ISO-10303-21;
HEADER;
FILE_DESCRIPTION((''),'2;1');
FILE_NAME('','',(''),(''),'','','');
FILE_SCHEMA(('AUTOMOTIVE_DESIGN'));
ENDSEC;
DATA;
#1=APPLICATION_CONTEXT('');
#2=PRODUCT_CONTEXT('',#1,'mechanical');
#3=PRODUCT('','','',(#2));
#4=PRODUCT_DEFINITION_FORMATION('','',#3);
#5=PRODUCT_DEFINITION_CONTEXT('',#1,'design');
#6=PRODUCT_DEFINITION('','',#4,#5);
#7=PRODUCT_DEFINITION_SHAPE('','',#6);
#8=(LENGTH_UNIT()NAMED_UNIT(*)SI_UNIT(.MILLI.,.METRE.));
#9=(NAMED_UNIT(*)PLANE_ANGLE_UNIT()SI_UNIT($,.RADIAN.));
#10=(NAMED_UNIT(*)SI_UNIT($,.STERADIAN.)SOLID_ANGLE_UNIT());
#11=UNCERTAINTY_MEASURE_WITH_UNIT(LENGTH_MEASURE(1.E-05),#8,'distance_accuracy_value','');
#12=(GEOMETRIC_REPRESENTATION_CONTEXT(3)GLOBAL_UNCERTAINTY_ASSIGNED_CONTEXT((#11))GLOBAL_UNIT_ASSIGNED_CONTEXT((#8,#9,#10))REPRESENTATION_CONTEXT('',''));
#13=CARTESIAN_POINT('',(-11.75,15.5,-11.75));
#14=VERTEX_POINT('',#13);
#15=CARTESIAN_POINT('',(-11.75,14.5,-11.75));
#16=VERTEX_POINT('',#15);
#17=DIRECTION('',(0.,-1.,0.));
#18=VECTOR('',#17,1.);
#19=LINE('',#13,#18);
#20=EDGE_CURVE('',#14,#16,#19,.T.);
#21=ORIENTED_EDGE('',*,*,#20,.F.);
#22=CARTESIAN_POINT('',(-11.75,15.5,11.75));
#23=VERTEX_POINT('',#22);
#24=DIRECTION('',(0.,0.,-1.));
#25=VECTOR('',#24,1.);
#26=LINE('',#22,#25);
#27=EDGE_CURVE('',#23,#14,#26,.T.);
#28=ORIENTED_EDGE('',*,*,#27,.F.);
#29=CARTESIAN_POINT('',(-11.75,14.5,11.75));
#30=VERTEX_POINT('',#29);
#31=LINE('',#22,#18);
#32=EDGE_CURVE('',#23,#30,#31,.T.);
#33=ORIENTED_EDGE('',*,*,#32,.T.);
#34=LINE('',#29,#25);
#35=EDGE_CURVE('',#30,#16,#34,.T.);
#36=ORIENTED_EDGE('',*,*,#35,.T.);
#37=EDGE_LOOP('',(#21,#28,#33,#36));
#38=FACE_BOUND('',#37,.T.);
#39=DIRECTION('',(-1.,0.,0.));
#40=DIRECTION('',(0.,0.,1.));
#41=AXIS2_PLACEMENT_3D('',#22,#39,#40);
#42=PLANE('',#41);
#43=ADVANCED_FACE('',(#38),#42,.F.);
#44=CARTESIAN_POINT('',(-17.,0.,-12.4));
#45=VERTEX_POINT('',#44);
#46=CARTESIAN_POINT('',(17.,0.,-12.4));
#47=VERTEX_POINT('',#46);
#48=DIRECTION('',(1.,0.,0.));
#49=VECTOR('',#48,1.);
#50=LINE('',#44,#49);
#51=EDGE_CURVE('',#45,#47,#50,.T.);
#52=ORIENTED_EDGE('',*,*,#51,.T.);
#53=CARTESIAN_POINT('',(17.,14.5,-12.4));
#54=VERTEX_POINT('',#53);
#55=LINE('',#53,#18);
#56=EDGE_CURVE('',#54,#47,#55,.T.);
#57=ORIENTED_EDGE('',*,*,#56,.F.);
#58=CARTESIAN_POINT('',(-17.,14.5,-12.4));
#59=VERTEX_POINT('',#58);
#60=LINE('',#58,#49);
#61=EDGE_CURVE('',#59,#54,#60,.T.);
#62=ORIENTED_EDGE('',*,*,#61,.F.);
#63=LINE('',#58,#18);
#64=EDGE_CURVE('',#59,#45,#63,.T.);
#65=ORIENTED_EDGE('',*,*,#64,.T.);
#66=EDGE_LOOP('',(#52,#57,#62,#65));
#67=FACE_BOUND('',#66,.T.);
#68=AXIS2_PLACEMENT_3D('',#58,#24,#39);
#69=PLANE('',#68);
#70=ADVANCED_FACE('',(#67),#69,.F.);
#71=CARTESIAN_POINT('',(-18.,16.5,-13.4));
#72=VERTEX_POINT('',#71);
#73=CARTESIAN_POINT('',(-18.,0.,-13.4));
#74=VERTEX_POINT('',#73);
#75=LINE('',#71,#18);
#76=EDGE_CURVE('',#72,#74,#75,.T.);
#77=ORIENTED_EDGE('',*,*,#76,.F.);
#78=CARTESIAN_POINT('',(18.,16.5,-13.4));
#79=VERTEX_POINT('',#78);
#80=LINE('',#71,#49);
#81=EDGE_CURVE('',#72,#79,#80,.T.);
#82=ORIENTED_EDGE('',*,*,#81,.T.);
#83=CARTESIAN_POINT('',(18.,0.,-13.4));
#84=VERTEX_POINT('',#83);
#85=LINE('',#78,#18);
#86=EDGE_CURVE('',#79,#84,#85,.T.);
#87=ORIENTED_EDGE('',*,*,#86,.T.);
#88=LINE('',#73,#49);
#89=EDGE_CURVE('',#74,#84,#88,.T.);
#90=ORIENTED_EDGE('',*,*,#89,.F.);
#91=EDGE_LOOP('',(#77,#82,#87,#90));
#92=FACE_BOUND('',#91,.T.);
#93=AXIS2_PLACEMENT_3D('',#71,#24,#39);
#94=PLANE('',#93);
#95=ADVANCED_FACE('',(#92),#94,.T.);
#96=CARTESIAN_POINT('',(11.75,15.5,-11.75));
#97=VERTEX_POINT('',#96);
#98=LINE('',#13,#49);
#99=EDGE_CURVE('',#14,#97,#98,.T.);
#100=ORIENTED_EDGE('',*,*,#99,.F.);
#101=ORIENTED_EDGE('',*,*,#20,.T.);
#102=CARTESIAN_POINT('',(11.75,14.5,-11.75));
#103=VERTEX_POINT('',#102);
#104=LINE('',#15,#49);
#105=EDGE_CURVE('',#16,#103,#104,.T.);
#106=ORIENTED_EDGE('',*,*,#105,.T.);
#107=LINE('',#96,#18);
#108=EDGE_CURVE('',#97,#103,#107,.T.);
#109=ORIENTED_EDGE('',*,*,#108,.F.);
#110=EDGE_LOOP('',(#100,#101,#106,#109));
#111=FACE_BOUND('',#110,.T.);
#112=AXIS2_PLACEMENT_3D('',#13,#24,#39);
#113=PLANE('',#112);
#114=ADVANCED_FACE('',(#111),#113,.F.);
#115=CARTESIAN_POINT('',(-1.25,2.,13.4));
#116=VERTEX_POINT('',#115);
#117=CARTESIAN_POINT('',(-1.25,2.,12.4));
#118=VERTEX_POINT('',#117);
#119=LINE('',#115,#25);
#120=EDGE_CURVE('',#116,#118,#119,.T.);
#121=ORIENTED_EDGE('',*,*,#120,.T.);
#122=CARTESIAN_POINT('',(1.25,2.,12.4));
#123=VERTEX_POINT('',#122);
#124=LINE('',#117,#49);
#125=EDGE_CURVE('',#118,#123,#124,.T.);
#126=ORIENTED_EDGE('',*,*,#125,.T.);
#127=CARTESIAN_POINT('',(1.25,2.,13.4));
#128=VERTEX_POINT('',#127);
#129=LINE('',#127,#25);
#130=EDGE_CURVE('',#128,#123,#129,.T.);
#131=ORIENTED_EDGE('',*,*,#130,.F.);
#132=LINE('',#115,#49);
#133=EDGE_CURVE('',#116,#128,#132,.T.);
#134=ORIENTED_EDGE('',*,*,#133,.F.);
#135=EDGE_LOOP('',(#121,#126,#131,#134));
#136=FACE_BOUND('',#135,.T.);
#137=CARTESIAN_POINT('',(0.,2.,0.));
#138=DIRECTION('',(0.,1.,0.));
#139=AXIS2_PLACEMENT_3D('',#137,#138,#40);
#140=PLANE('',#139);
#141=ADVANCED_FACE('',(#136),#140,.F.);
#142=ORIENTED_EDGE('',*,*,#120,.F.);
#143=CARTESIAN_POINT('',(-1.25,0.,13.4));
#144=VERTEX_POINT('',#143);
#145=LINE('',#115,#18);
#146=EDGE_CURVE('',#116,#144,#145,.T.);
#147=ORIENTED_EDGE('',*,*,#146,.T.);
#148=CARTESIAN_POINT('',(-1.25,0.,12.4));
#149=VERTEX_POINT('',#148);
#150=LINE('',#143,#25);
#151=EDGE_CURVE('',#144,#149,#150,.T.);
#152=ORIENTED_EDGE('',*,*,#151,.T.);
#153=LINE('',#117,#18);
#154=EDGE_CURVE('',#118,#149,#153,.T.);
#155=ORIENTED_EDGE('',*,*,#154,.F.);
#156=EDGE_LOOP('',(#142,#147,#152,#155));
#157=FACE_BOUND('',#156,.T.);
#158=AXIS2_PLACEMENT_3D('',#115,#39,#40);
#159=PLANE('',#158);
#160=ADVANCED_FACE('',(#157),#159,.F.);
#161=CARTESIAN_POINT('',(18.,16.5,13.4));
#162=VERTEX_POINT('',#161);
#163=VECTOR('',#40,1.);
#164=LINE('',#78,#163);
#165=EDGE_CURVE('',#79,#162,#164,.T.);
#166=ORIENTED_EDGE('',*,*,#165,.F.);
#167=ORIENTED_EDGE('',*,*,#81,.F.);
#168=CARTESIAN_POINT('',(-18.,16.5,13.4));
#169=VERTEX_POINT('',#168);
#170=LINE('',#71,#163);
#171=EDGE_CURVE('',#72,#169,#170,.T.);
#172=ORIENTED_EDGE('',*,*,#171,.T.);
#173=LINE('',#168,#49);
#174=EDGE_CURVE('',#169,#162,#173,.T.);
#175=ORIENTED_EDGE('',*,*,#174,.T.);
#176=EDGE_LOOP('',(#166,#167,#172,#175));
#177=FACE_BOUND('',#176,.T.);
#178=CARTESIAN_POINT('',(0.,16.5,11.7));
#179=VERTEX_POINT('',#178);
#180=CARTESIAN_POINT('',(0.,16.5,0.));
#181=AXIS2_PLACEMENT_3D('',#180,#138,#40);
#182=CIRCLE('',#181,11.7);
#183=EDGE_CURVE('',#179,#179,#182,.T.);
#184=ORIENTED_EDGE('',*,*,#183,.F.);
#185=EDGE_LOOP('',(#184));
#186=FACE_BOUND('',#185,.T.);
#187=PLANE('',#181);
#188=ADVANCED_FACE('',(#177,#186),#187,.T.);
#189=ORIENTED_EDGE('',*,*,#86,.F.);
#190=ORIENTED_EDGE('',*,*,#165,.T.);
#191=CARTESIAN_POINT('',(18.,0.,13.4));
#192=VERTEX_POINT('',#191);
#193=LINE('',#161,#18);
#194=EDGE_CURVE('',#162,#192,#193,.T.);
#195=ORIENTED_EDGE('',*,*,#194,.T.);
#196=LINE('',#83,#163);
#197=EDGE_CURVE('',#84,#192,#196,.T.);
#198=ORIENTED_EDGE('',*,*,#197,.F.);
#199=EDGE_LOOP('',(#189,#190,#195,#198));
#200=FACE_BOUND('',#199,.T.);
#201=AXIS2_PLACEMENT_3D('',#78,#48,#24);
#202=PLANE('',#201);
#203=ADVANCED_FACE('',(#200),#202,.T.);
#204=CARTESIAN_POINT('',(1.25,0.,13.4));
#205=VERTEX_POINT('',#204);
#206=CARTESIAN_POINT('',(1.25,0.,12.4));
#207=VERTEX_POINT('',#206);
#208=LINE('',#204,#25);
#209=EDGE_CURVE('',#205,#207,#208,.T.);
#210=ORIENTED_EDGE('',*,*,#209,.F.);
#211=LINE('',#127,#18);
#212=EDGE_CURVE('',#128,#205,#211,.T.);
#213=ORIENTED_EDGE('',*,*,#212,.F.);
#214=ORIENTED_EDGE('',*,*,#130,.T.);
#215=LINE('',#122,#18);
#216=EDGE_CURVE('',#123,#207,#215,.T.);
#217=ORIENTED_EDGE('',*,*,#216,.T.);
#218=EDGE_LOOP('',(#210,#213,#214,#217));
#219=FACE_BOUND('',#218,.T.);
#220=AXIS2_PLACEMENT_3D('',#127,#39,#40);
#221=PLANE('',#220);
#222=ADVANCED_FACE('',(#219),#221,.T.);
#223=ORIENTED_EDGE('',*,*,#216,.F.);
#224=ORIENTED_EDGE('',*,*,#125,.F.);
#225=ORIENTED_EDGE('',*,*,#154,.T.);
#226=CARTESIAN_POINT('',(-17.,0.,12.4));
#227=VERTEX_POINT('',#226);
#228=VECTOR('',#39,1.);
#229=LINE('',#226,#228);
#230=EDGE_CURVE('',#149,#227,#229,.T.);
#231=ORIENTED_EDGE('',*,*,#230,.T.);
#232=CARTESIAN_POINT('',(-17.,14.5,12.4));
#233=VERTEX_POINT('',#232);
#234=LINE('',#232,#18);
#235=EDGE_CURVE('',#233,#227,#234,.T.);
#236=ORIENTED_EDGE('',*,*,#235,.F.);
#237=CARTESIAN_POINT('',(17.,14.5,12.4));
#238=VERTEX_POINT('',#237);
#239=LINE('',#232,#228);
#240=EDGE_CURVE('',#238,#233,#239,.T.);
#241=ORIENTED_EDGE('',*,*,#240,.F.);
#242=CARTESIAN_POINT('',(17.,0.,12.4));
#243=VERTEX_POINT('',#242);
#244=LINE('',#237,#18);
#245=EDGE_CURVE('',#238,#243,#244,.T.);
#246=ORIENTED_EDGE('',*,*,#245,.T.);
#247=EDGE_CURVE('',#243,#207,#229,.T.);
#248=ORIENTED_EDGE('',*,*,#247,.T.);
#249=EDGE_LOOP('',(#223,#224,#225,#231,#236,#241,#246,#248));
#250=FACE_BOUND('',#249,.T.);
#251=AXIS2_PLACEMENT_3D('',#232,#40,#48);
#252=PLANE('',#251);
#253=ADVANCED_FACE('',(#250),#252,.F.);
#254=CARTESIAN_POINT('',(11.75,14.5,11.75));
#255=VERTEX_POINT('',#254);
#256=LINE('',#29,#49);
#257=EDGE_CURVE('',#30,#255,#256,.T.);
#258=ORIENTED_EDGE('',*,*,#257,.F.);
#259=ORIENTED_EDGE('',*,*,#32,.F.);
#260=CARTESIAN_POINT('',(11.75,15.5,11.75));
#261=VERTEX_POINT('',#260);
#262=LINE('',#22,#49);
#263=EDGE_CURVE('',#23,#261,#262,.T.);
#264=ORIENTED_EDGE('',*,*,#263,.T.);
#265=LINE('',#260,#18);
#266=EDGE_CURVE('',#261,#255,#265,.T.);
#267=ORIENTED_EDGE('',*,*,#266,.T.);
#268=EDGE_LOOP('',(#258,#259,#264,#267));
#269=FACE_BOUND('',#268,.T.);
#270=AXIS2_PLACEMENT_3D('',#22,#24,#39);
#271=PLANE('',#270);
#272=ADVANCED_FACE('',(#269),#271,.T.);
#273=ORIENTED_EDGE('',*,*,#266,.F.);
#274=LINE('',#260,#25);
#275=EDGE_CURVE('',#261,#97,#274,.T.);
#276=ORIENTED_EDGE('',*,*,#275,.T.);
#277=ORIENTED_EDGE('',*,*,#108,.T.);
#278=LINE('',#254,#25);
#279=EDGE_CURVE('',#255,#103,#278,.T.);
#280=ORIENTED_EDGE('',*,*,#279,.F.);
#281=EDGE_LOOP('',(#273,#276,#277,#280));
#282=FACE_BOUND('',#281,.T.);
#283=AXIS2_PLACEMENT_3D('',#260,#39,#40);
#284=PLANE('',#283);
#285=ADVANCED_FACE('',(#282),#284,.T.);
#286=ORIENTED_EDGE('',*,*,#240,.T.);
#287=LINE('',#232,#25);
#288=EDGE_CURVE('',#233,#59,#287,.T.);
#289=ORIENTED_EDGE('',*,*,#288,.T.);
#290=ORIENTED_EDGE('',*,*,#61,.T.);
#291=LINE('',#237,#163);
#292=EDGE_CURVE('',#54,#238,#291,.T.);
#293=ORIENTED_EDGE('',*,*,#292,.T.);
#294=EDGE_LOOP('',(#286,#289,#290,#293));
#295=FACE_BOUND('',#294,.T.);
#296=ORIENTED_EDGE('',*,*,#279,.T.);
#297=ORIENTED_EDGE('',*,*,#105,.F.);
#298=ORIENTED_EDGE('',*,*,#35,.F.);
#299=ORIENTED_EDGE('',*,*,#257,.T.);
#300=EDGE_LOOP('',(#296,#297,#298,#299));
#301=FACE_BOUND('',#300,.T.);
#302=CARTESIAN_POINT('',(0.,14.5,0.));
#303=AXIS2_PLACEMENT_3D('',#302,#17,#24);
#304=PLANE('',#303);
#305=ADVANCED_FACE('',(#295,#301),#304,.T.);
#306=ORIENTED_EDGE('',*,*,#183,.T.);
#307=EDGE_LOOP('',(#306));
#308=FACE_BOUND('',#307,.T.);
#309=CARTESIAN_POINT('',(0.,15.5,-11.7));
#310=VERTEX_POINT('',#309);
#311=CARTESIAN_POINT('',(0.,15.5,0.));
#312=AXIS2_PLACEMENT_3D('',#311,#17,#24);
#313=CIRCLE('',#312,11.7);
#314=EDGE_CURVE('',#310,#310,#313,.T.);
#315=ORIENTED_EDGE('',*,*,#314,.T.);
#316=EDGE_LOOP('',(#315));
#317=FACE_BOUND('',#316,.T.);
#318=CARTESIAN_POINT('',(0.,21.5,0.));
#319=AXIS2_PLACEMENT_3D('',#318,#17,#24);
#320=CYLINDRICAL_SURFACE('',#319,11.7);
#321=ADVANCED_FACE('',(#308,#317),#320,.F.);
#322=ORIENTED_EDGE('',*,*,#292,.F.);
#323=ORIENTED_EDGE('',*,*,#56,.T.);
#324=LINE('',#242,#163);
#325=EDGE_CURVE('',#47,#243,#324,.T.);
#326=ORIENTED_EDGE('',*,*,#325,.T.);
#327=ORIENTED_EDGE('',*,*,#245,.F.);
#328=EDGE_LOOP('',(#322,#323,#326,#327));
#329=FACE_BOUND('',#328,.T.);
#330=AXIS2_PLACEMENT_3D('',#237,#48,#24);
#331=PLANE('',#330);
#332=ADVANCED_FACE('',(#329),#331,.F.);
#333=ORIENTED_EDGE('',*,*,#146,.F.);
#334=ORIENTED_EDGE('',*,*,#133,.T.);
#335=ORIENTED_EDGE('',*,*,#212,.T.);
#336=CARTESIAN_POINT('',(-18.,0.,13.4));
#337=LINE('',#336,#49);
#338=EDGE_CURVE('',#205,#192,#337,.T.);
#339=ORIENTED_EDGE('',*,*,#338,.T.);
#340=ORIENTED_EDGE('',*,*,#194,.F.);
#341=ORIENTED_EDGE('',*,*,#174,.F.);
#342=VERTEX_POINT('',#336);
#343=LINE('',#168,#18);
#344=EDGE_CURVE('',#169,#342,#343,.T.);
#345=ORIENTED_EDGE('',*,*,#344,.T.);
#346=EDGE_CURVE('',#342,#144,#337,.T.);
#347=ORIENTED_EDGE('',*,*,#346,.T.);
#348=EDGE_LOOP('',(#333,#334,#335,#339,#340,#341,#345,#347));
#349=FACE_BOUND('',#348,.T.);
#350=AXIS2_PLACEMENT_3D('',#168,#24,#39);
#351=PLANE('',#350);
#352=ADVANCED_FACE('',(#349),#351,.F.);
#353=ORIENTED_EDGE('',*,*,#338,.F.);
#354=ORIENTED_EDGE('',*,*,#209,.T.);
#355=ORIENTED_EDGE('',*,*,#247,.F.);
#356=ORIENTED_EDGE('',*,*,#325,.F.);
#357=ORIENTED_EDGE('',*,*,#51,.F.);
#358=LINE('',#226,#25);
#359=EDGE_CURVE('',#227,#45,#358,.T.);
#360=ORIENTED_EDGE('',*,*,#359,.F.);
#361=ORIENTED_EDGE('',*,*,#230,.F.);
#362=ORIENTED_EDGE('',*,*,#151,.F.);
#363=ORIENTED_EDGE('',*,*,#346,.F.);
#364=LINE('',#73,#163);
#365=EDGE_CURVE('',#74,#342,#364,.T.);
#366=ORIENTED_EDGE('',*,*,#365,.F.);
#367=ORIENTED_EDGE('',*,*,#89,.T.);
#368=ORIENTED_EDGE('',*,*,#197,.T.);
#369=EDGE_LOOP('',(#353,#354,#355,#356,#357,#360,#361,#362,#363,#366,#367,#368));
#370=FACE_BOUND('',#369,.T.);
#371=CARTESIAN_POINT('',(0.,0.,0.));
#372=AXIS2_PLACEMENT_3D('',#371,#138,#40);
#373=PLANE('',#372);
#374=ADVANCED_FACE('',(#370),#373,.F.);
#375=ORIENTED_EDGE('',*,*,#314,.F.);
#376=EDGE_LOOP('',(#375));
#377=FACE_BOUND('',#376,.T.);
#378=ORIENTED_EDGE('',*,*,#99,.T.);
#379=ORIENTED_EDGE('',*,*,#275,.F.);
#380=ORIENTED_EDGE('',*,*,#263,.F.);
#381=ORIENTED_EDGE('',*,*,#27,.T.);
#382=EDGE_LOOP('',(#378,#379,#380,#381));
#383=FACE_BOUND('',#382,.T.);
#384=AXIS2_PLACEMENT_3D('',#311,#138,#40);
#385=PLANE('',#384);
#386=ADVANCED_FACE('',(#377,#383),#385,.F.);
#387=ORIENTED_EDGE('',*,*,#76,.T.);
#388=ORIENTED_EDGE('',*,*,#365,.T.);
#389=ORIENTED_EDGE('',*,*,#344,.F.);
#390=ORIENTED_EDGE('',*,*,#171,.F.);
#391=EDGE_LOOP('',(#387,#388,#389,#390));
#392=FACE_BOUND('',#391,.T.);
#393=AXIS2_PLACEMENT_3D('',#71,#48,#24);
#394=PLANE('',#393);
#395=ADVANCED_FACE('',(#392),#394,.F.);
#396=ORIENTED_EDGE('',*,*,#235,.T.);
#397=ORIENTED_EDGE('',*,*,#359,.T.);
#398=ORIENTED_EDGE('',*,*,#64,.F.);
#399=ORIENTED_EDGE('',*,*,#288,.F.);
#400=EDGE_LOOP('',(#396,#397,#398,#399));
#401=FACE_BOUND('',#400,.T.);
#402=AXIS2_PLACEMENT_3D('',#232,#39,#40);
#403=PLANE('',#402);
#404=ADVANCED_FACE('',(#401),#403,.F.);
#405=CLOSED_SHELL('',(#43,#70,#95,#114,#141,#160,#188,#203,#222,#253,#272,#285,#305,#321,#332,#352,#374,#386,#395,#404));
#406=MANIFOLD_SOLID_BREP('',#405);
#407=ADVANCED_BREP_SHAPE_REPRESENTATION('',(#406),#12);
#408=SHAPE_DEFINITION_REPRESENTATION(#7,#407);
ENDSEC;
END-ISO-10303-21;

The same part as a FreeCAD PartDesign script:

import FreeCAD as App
import Part
import Sketcher
from FreeCAD import Vector
Q = App.Units.Quantity


def add_polygon(sketch, points):
    """Adds a closed chain of lines whose ends are joined by coincident constraints."""
    first, n = sketch.GeometryCount, len(points)
    for a, b in zip(points, points[1:] + points[:1]):
        sketch.addGeometry(Part.LineSegment(App.Vector(*a, 0), App.Vector(*b, 0)), False)
    for i in range(n):
        sketch.addConstraint(Sketcher.Constraint("Coincident", first + i, 2, first + (i + 1) % n, 1))

doc = App.newDocument("Part")
body = doc.addObject("PartDesign::Body", "Body")

sketch1 = body.newObject("Sketcher::SketchObject", "Sketch")
sketch1.AttachmentSupport = (doc.getObject("XZ_Plane"), [""])
sketch1.MapMode = "FlatFace"
add_polygon(sketch1, [(-18, -13), (-18, 13), (18, 13), (18, -13)])
sketch1.addConstraint(Sketcher.Constraint("Vertical", 0))
sketch1.addConstraint(Sketcher.Constraint("Horizontal", 1))
sketch1.addConstraint(Sketcher.Constraint("Vertical", 2))
sketch1.addConstraint(Sketcher.Constraint("Horizontal", 3))
sketch1.addConstraint(Sketcher.Constraint("Symmetric", 0, 2, 2, 2, -1, 1))
sketch1.addConstraint(Sketcher.Constraint("DistanceX", 1, 1, 1, 2, Q("36 mm")))
sketch1.addConstraint(Sketcher.Constraint("DistanceY", 0, 1, 0, 2, Q("26.8 mm")))
pad1 = body.newObject("PartDesign::Pad", "Pad")
pad1.Profile = sketch1
pad1.Length = 16.5
pad1.Reversed = True

sketch2 = body.newObject("Sketcher::SketchObject", "Sketch001")
sketch2.AttachmentSupport = (doc.getObject("XZ_Plane"), [""])
sketch2.MapMode = "FlatFace"
add_polygon(sketch2, [(17, -12), (17, 12), (-17, 12), (-17, -12)])
sketch2.addConstraint(Sketcher.Constraint("Vertical", 0))
sketch2.addConstraint(Sketcher.Constraint("Horizontal", 1))
sketch2.addConstraint(Sketcher.Constraint("Vertical", 2))
sketch2.addConstraint(Sketcher.Constraint("Horizontal", 3))
sketch2.addConstraint(Sketcher.Constraint("Symmetric", 0, 2, 2, 2, -1, 1))
sketch2.addConstraint(Sketcher.Constraint("DistanceX", 1, 2, 1, 1, Q("34 mm")))
sketch2.addConstraint(Sketcher.Constraint("DistanceY", 0, 1, 0, 2, Q("24.8 mm")))
pocket1 = body.newObject("PartDesign::Pocket", "Pocket")
pocket1.Profile = sketch2
pocket1.Length = 14.5

sketch3 = body.newObject("Sketcher::SketchObject", "Sketch002")
sketch3.AttachmentSupport = (doc.getObject("XZ_Plane"), [""])
sketch3.MapMode = "FlatFace"
sketch3.AttachmentOffset = App.Placement(Vector(0, 0, -14.5), App.Rotation())
add_polygon(sketch3, [(-12, 12), (-12, -12), (12, -12), (12, 12)])
sketch3.addConstraint(Sketcher.Constraint("Vertical", 0))
sketch3.addConstraint(Sketcher.Constraint("Horizontal", 1))
sketch3.addConstraint(Sketcher.Constraint("Vertical", 2))
sketch3.addConstraint(Sketcher.Constraint("Horizontal", 3))
sketch3.addConstraint(Sketcher.Constraint("Symmetric", 0, 2, 2, 2, -1, 1))
sketch3.addConstraint(Sketcher.Constraint("Equal", 3, 0))
sketch3.addConstraint(Sketcher.Constraint("DistanceX", 1, 1, 1, 2, Q("23.5 mm")))
pocket2 = body.newObject("PartDesign::Pocket", "Pocket001")
pocket2.Profile = sketch3
pocket2.Length = 1

sketch4 = body.newObject("Sketcher::SketchObject", "Sketch003")
sketch4.AttachmentSupport = (doc.getObject("XZ_Plane"), [""])
sketch4.MapMode = "FlatFace"
sketch4.AttachmentOffset = App.Placement(Vector(0, 0, -15.5), App.Rotation())
sketch4.addGeometry(Part.Circle(Vector(0, 0, 0), Vector(0, 0, 1), 12), False)
sketch4.addConstraint(Sketcher.Constraint("Coincident", 0, 3, -1, 1))
sketch4.addConstraint(Sketcher.Constraint("Diameter", 0, Q("23.4 mm")))
pocket3 = body.newObject("PartDesign::Pocket", "Pocket002")
pocket3.Profile = sketch4
pocket3.Length = 6

sketch5 = body.newObject("Sketcher::SketchObject", "Sketch004")
sketch5.AttachmentSupport = (doc.getObject("XZ_Plane"), [""])
sketch5.MapMode = "FlatFace"
add_polygon(sketch5, [(1.2, 12.4), (1.2, 13.4), (-1.2, 13.4), (-1.2, 12.4)])
sketch5.addConstraint(Sketcher.Constraint("Vertical", 0))
sketch5.addConstraint(Sketcher.Constraint("Horizontal", 1))
sketch5.addConstraint(Sketcher.Constraint("Vertical", 2))
sketch5.addConstraint(Sketcher.Constraint("Horizontal", 3))
sketch5.addConstraint(Sketcher.Constraint("DistanceY", 0, 1, 0, 2, Q("1 mm")))
sketch5.addConstraint(Sketcher.Constraint("DistanceX", 1, 2, 1, 1, Q("2.5 mm")))
sketch5.addConstraint(Sketcher.Constraint("DistanceY", -1, 1, 0, 2, Q("13.4 mm")))
sketch5.addConstraint(Sketcher.Constraint("DistanceX", -1, 1, 0, 2, Q("1.25 mm")))
pocket4 = body.newObject("PartDesign::Pocket", "Pocket003")
pocket4.Profile = sketch5
pocket4.Length = 2

doc.recompute()
